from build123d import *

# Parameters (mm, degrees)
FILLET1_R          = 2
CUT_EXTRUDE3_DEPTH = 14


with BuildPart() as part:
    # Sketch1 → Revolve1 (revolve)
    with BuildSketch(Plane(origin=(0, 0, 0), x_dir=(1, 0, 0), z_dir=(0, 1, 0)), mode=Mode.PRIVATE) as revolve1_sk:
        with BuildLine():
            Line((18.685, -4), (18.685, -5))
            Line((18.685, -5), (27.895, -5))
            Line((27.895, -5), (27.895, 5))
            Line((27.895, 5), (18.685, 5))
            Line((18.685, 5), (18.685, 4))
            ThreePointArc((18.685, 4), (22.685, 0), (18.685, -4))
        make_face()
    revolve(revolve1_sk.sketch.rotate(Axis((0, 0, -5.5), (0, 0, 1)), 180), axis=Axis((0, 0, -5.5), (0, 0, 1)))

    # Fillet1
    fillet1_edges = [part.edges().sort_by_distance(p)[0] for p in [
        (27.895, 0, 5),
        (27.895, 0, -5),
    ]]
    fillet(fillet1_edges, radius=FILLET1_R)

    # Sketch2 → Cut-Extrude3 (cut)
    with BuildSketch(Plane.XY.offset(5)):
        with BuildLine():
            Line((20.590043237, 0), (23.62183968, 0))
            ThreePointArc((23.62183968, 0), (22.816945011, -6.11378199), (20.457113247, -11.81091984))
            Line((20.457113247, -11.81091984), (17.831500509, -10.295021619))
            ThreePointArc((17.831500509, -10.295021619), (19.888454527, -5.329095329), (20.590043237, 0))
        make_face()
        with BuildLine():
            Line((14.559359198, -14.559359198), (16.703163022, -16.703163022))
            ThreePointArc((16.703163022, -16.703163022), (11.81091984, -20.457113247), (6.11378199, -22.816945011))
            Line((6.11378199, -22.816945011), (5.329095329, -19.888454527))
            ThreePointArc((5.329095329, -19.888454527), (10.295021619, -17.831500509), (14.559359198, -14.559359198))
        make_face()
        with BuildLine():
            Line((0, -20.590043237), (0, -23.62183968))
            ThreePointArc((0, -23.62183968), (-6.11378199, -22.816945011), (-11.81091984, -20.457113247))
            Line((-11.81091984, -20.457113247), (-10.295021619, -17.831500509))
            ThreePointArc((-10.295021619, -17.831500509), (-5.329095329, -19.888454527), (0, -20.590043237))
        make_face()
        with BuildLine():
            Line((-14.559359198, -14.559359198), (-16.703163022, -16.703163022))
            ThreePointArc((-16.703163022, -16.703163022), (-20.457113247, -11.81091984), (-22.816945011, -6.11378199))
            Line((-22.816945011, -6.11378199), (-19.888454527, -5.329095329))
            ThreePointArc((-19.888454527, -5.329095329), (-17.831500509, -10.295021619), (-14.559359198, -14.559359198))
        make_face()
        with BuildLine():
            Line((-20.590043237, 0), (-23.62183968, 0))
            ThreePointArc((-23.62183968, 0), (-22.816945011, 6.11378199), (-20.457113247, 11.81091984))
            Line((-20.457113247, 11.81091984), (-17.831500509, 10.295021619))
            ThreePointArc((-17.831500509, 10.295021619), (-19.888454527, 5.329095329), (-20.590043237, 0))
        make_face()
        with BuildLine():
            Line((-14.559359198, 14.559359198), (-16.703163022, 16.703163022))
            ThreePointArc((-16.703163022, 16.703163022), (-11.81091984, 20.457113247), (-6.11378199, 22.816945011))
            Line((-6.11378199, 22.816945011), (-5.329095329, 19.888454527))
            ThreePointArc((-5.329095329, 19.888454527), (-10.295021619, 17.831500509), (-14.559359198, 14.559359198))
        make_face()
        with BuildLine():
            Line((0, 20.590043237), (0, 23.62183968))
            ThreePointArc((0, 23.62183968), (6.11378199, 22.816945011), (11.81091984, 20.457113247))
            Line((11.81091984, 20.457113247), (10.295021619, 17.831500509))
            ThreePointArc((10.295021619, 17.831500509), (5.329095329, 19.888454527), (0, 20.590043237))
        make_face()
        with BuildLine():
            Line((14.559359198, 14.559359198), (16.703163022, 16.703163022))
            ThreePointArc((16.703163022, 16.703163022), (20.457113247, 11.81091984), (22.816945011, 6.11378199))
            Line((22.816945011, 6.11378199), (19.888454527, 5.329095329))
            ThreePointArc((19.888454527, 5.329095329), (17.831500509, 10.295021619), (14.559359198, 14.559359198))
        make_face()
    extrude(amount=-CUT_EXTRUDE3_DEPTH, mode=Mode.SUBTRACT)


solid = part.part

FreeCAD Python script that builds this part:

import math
import FreeCAD as App
import Part
import Sketcher
Q = App.Units.Quantity


def edges_at(feature, points):
    """Names of the edges that pass closest to the given points."""
    edges = feature.Shape.Edges
    near = lambda p: min(range(len(edges)), key=lambda i: edges[i].distToShape(Part.Vertex(*p))[0])
    return sorted({f"Edge{near(p) + 1}" for p in points})

doc = App.newDocument("Part")
body = doc.addObject("PartDesign::Body", "Body")

# Sketch on XZ plane
sketch1 = doc.addObject("Sketcher::SketchObject", "Sketch")
body.addObject(sketch1)
sketch1.AttachmentSupport = (doc.XZ_Plane, [""])
sketch1.MapMode = "FlatFace"
sketch1.addGeometry(Part.LineSegment(App.Vector(18.7, 4, 0), App.Vector(18.7, 5, 0)), False)
sketch1.addGeometry(Part.LineSegment(App.Vector(18.7, 5, 0), App.Vector(27.9, 5, 0)), False)
sketch1.addGeometry(Part.LineSegment(App.Vector(27.9, 5, 0), App.Vector(27.9, -5, 0)), False)
sketch1.addGeometry(Part.LineSegment(App.Vector(27.9, -5, 0), App.Vector(18.7, -5, 0)), False)
sketch1.addGeometry(Part.LineSegment(App.Vector(18.7, -5, 0), App.Vector(18.7, -4, 0)), False)
sketch1.addGeometry(Part.ArcOfCircle(Part.Circle(App.Vector(18.7, 0, 0), App.Vector(0, 0, 1), 4), math.radians(-90), math.radians(90)), False)
sketch1.addConstraint(Sketcher.Constraint("Coincident", 0, 2, 1, 1))
sketch1.addConstraint(Sketcher.Constraint("Coincident", 1, 2, 2, 1))
sketch1.addConstraint(Sketcher.Constraint("Coincident", 2, 2, 3, 1))
sketch1.addConstraint(Sketcher.Constraint("Coincident", 3, 2, 4, 1))
sketch1.addConstraint(Sketcher.Constraint("Coincident", 4, 2, 5, 1))
sketch1.addConstraint(Sketcher.Constraint("Coincident", 5, 2, 0, 1))
sketch1.addConstraint(Sketcher.Constraint("Vertical", 0))
sketch1.addConstraint(Sketcher.Constraint("Horizontal", 1))
sketch1.addConstraint(Sketcher.Constraint("Vertical", 2))
sketch1.addConstraint(Sketcher.Constraint("Horizontal", 3))
sketch1.addConstraint(Sketcher.Constraint("Vertical", 4))
sketch1.addConstraint(Sketcher.Constraint("Symmetric", 0, 2, 3, 2, -1))
sketch1.addConstraint(Sketcher.Constraint("PointOnObject", 5, 3, -1))
sketch1.addConstraint(Sketcher.Constraint("Vertical", 5, 3, 0, 2))
sketch1.addConstraint(Sketcher.Constraint("Radius", 5, 4.0))
sketch1.addConstraint(Sketcher.Constraint("DistanceY", 0, 1, 0, 2, 1.0))
sketch1.addConstraint(Sketcher.Constraint("DistanceX", 1, 1, 1, 2, 9.21))
sketch1.addConstraint(Sketcher.Constraint("DistanceX", -1, 1, 5, 3, 18.685))
revolution = doc.addObject("PartDesign::Revolution", "Revolution")
body.addObject(revolution)
revolution.Profile = sketch1
revolution.ReferenceAxis = (sketch1, ["V_Axis"])
revolution.Angle = 360
doc.recompute()

fillet = doc.addObject("PartDesign::Fillet", "Fillet")
body.addObject(fillet)
fillet.Base = (revolution, edges_at(revolution, [(27.895, 0, 5), (27.895, 0, -5)]))
fillet.Radius = 2

# Sketch on XY plane
sketch2 = doc.addObject("Sketcher::SketchObject", "Sketch001")
body.addObject(sketch2)
sketch2.AttachmentSupport = (doc.XY_Plane, [""])
sketch2.MapMode = "FlatFace"
sketch2.AttachmentOffset = App.Placement(App.Vector(0, 0, 5), App.Rotation())
sketch2.addGeometry(Part.LineSegment(App.Vector(23.6, 0, 0), App.Vector(20.6, 0, 0)), False)
sketch2.addGeometry(Part.ArcOfCircle(Part.Circle(App.Vector(0, 0, 0), App.Vector(0, 0, 1), 20.6), math.radians(-30), math.radians(0)), False)
sketch2.addGeometry(Part.LineSegment(App.Vector(17.8, -10.3, 0), App.Vector(20.5, -11.8, 0)), False)
sketch2.addGeometry(Part.ArcOfCircle(Part.Circle(App.Vector(0, 0, 0), App.Vector(0, 0, 1), 23.6), math.radians(-30), math.radians(0)), False)
sketch2.addGeometry(Part.LineSegment(App.Vector(16.7, -16.7, 0), App.Vector(14.6, -14.6, 0)), False)
sketch2.addGeometry(Part.ArcOfCircle(Part.Circle(App.Vector(0, 0, 0), App.Vector(0, 0, 1), 20.6), math.radians(-75), math.radians(-45)), False)
sketch2.addGeometry(Part.LineSegment(App.Vector(5.3, -19.9, 0), App.Vector(6.1, -22.8, 0)), False)
sketch2.addGeometry(Part.ArcOfCircle(Part.Circle(App.Vector(0, 0, 0), App.Vector(0, 0, 1), 23.6), math.radians(-75), math.radians(-45)), False)
sketch2.addGeometry(Part.LineSegment(App.Vector(0, -23.6, 0), App.Vector(0, -20.6, 0)), False)
sketch2.addGeometry(Part.ArcOfCircle(Part.Circle(App.Vector(0, 0, 0), App.Vector(0, 0, 1), 20.6), math.radians(-120), math.radians(-90)), False)
sketch2.addGeometry(Part.LineSegment(App.Vector(-10.3, -17.8, 0), App.Vector(-11.8, -20.5, 0)), False)
sketch2.addGeometry(Part.ArcOfCircle(Part.Circle(App.Vector(0, 0, 0), App.Vector(0, 0, 1), 23.6), math.radians(-120), math.radians(-90)), False)
sketch2.addGeometry(Part.LineSegment(App.Vector(-16.7, -16.7, 0), App.Vector(-14.6, -14.6, 0)), False)
sketch2.addGeometry(Part.ArcOfCircle(Part.Circle(App.Vector(0, 0, 0), App.Vector(0, 0, 1), 20.6), math.radians(-165), math.radians(-135)), False)
sketch2.addGeometry(Part.LineSegment(App.Vector(-19.9, -5.3, 0), App.Vector(-22.8, -6.1, 0)), False)
sketch2.addGeometry(Part.ArcOfCircle(Part.Circle(App.Vector(0, 0, 0), App.Vector(0, 0, 1), 23.6), math.radians(-165), math.radians(-135)), False)
sketch2.addGeometry(Part.LineSegment(App.Vector(-23.6, 0, 0), App.Vector(-20.6, 0, 0)), False)
sketch2.addGeometry(Part.ArcOfCircle(Part.Circle(App.Vector(0, 0, 0), App.Vector(0, 0, 1), 20.6), math.radians(150), math.radians(180)), False)
sketch2.addGeometry(Part.LineSegment(App.Vector(-17.8, 10.3, 0), App.Vector(-20.5, 11.8, 0)), False)
sketch2.addGeometry(Part.ArcOfCircle(Part.Circle(App.Vector(0, 0, 0), App.Vector(0, 0, 1), 23.6), math.radians(150), math.radians(180)), False)
sketch2.addGeometry(Part.LineSegment(App.Vector(-16.7, 16.7, 0), App.Vector(-14.6, 14.6, 0)), False)
sketch2.addGeometry(Part.ArcOfCircle(Part.Circle(App.Vector(0, 0, 0), App.Vector(0, 0, 1), 20.6), math.radians(105), math.radians(135)), False)
sketch2.addGeometry(Part.LineSegment(App.Vector(-5.3, 19.9, 0), App.Vector(-6.1, 22.8, 0)), False)
sketch2.addGeometry(Part.ArcOfCircle(Part.Circle(App.Vector(0, 0, 0), App.Vector(0, 0, 1), 23.6), math.radians(105), math.radians(135)), False)
sketch2.addGeometry(Part.LineSegment(App.Vector(0, 23.6, 0), App.Vector(0, 20.6, 0)), False)
sketch2.addGeometry(Part.ArcOfCircle(Part.Circle(App.Vector(0, 0, 0), App.Vector(0, 0, 1), 20.6), math.radians(60), math.radians(90)), False)
sketch2.addGeometry(Part.LineSegment(App.Vector(10.3, 17.8, 0), App.Vector(11.8, 20.5, 0)), False)
sketch2.addGeometry(Part.ArcOfCircle(Part.Circle(App.Vector(0, 0, 0), App.Vector(0, 0, 1), 23.6), math.radians(60), math.radians(90)), False)
sketch2.addGeometry(Part.LineSegment(App.Vector(16.7, 16.7, 0), App.Vector(14.6, 14.6, 0)), False)
sketch2.addGeometry(Part.ArcOfCircle(Part.Circle(App.Vector(0, 0, 0), App.Vector(0, 0, 1), 20.6), math.radians(15), math.radians(45)), False)
sketch2.addGeometry(Part.LineSegment(App.Vector(19.9, 5.3, 0), App.Vector(22.8, 6.1, 0)), False)
sketch2.addGeometry(Part.ArcOfCircle(Part.Circle(App.Vector(0, 0, 0), App.Vector(0, 0, 1), 23.6), math.radians(15), math.radians(45)), False)
sketch2.addConstraint(Sketcher.Constraint("Coincident", 0, 2, 1, 2))
sketch2.addConstraint(Sketcher.Constraint("Coincident", 1, 1, 2, 1))
sketch2.addConstraint(Sketcher.Constraint("Coincident", 2, 2, 3, 1))
sketch2.addConstraint(Sketcher.Constraint("Coincident", 3, 2, 0, 1))
sketch2.addConstraint(Sketcher.Constraint("Coincident", 4, 2, 5, 2))
sketch2.addConstraint(Sketcher.Constraint("Coincident", 5, 1, 6, 1))
sketch2.addConstraint(Sketcher.Constraint("Coincident", 6, 2, 7, 1))
sketch2.addConstraint(Sketcher.Constraint("Coincident", 7, 2, 4, 1))
sketch2.addConstraint(Sketcher.Constraint("Coincident", 8, 2, 9, 2))
sketch2.addConstraint(Sketcher.Constraint("Coincident", 9, 1, 10, 1))
sketch2.addConstraint(Sketcher.Constraint("Coincident", 10, 2, 11, 1))
sketch2.addConstraint(Sketcher.Constraint("Coincident", 11, 2, 8, 1))
sketch2.addConstraint(Sketcher.Constraint("Coincident", 12, 2, 13, 2))
sketch2.addConstraint(Sketcher.Constraint("Coincident", 13, 1, 14, 1))
sketch2.addConstraint(Sketcher.Constraint("Coincident", 14, 2, 15, 1))
sketch2.addConstraint(Sketcher.Constraint("Coincident", 15, 2, 12, 1))
sketch2.addConstraint(Sketcher.Constraint("Coincident", 16, 2, 17, 2))
sketch2.addConstraint(Sketcher.Constraint("Coincident", 17, 1, 18, 1))
sketch2.addConstraint(Sketcher.Constraint("Coincident", 18, 2, 19, 1))
sketch2.addConstraint(Sketcher.Constraint("Coincident", 19, 2, 16, 1))
sketch2.addConstraint(Sketcher.Constraint("Coincident", 20, 2, 21, 2))
sketch2.addConstraint(Sketcher.Constraint("Coincident", 21, 1, 22, 1))
sketch2.addConstraint(Sketcher.Constraint("Coincident", 22, 2, 23, 1))
sketch2.addConstraint(Sketcher.Constraint("Coincident", 23, 2, 20, 1))
sketch2.addConstraint(Sketcher.Constraint("Coincident", 24, 2, 25, 2))
sketch2.addConstraint(Sketcher.Constraint("Coincident", 25, 1, 26, 1))
sketch2.addConstraint(Sketcher.Constraint("Coincident", 26, 2, 27, 1))
sketch2.addConstraint(Sketcher.Constraint("Coincident", 27, 2, 24, 1))
sketch2.addConstraint(Sketcher.Constraint("Coincident", 28, 2, 29, 2))
sketch2.addConstraint(Sketcher.Constraint("Coincident", 29, 1, 30, 1))
sketch2.addConstraint(Sketcher.Constraint("Coincident", 30, 2, 31, 1))
sketch2.addConstraint(Sketcher.Constraint("Coincident", 31, 2, 28, 1))
sketch2.addConstraint(Sketcher.Constraint("Horizontal", 0))
sketch2.addConstraint(Sketcher.Constraint("Vertical", 8))
sketch2.addConstraint(Sketcher.Constraint("Horizontal", 16))
sketch2.addConstraint(Sketcher.Constraint("Vertical", 24))
sketch2.addConstraint(Sketcher.Constraint("Coincident", 1, 3, -1, 1))
sketch2.addConstraint(Sketcher.Constraint("Coincident", 3, 3, -1, 1))
sketch2.addConstraint(Sketcher.Constraint("Coincident", 5, 3, -1, 1))
sketch2.addConstraint(Sketcher.Constraint("Coincident", 7, 3, -1, 1))
sketch2.addConstraint(Sketcher.Constraint("Coincident", 9, 3, -1, 1))
sketch2.addConstraint(Sketcher.Constraint("Coincident", 11, 3, -1, 1))
sketch2.addConstraint(Sketcher.Constraint("Coincident", 13, 3, -1, 1))
sketch2.addConstraint(Sketcher.Constraint("Coincident", 15, 3, -1, 1))
sketch2.addConstraint(Sketcher.Constraint("Coincident", 17, 3, -1, 1))
sketch2.addConstraint(Sketcher.Constraint("Coincident", 19, 3, -1, 1))
sketch2.addConstraint(Sketcher.Constraint("Coincident", 21, 3, -1, 1))
sketch2.addConstraint(Sketcher.Constraint("Coincident", 23, 3, -1, 1))
sketch2.addConstraint(Sketcher.Constraint("Coincident", 25, 3, -1, 1))
sketch2.addConstraint(Sketcher.Constraint("Coincident", 27, 3, -1, 1))
sketch2.addConstraint(Sketcher.Constraint("Coincident", 29, 3, -1, 1))
sketch2.addConstraint(Sketcher.Constraint("Coincident", 31, 3, -1, 1))
sketch2.addConstraint(Sketcher.Constraint("Equal", 1, 5))
sketch2.addConstraint(Sketcher.Constraint("Equal", 3, 7))
sketch2.addConstraint(Sketcher.Constraint("Equal", 5, 9))
sketch2.addConstraint(Sketcher.Constraint("Equal", 7, 11))
sketch2.addConstraint(Sketcher.Constraint("Equal", 9, 13))
sketch2.addConstraint(Sketcher.Constraint("Equal", 11, 15))
sketch2.addConstraint(Sketcher.Constraint("Equal", 13, 17))
sketch2.addConstraint(Sketcher.Constraint("Equal", 15, 19))
sketch2.addConstraint(Sketcher.Constraint("Equal", 17, 21))
sketch2.addConstraint(Sketcher.Constraint("Equal", 19, 23))
sketch2.addConstraint(Sketcher.Constraint("Equal", 21, 25))
sketch2.addConstraint(Sketcher.Constraint("Equal", 23, 27))
sketch2.addConstraint(Sketcher.Constraint("Equal", 25, 29))
sketch2.addConstraint(Sketcher.Constraint("Equal", 27, 31))
sketch2.addConstraint(Sketcher.Constraint("PointOnObject", 0, 2, -1))
sketch2.addConstraint(Sketcher.Constraint("PointOnObject", 8, 2, -2))
sketch2.addConstraint(Sketcher.Constraint("PointOnObject", 16, 2, -1))
sketch2.addConstraint(Sketcher.Constraint("PointOnObject", 24, 2, -2))
sketch2.addConstraint(Sketcher.Constraint("Perpendicular", 2, 10))
sketch2.addConstraint(Sketcher.Constraint("Perpendicular", 4, 12))
sketch2.addConstraint(Sketcher.Constraint("Perpendicular", 6, 14))
sketch2.addConstraint(Sketcher.Constraint("Perpendicular", 10, 18))
sketch2.addConstraint(Sketcher.Constraint("Perpendicular", 12, 20))
sketch2.addConstraint(Sketcher.Constraint("Perpendicular", 14, 22))
sketch2.addConstraint(Sketcher.Constraint("Perpendicular", 18, 26))
sketch2.addConstraint(Sketcher.Constraint("Perpendicular", 20, 28))
sketch2.addConstraint(Sketcher.Constraint("Perpendicular", 22, 30))
sketch2.addConstraint(Sketcher.Constraint("Horizontal", 4, 2, 12, 2))
sketch2.addConstraint(Sketcher.Constraint("Horizontal", 7, 2, 15, 2))
sketch2.addConstraint(Sketcher.Constraint("Horizontal", 20, 2, 28, 2))
sketch2.addConstraint(Sketcher.Constraint("Vertical", 12, 2, 20, 2))
sketch2.addConstraint(Sketcher.Constraint("Angle", 2, Q("-30 deg")))
sketch2.addConstraint(Sketcher.Constraint("Angle", 6, Q("-75 deg")))
sketch2.addConstraint(Sketcher.Constraint("Radius", 3, 23.62184))
sketch2.addConstraint(Sketcher.Constraint("Radius", 1, 20.590043))
sketch2.addConstraint(Sketcher.Constraint("DistanceX", -1, 1, 1, 1, 17.831501))
sketch2.addConstraint(Sketcher.Constraint("DistanceY", 9, 1, -1, 1, 17.831501))
sketch2.addConstraint(Sketcher.Constraint("DistanceX", 17, 1, -1, 1, 17.831501))
sketch2.addConstraint(Sketcher.Constraint("DistanceY", -1, 1, 25, 1, 17.831501))
sketch2.addConstraint(Sketcher.Constraint("DistanceY", 6, 2, 8, 2, 2.226902))
sketch2.addConstraint(Sketcher.Constraint("DistanceX", 14, 2, 16, 2, 2.226902))
sketch2.addConstraint(Sketcher.Constraint("DistanceY", 24, 2, 22, 2, 2.226902))
sketch2.addConstraint(Sketcher.Constraint("DistanceX", 0, 2, 30, 2, 2.226902))
sketch2.addConstraint(Sketcher.Constraint("DistanceX", -1, 1, 4, 2, 14.559359))
pocket1 = doc.addObject("PartDesign::Pocket", "Pocket")
body.addObject(pocket1)
pocket1.Profile = sketch2
pocket1.Length = 14

doc.recompute()
